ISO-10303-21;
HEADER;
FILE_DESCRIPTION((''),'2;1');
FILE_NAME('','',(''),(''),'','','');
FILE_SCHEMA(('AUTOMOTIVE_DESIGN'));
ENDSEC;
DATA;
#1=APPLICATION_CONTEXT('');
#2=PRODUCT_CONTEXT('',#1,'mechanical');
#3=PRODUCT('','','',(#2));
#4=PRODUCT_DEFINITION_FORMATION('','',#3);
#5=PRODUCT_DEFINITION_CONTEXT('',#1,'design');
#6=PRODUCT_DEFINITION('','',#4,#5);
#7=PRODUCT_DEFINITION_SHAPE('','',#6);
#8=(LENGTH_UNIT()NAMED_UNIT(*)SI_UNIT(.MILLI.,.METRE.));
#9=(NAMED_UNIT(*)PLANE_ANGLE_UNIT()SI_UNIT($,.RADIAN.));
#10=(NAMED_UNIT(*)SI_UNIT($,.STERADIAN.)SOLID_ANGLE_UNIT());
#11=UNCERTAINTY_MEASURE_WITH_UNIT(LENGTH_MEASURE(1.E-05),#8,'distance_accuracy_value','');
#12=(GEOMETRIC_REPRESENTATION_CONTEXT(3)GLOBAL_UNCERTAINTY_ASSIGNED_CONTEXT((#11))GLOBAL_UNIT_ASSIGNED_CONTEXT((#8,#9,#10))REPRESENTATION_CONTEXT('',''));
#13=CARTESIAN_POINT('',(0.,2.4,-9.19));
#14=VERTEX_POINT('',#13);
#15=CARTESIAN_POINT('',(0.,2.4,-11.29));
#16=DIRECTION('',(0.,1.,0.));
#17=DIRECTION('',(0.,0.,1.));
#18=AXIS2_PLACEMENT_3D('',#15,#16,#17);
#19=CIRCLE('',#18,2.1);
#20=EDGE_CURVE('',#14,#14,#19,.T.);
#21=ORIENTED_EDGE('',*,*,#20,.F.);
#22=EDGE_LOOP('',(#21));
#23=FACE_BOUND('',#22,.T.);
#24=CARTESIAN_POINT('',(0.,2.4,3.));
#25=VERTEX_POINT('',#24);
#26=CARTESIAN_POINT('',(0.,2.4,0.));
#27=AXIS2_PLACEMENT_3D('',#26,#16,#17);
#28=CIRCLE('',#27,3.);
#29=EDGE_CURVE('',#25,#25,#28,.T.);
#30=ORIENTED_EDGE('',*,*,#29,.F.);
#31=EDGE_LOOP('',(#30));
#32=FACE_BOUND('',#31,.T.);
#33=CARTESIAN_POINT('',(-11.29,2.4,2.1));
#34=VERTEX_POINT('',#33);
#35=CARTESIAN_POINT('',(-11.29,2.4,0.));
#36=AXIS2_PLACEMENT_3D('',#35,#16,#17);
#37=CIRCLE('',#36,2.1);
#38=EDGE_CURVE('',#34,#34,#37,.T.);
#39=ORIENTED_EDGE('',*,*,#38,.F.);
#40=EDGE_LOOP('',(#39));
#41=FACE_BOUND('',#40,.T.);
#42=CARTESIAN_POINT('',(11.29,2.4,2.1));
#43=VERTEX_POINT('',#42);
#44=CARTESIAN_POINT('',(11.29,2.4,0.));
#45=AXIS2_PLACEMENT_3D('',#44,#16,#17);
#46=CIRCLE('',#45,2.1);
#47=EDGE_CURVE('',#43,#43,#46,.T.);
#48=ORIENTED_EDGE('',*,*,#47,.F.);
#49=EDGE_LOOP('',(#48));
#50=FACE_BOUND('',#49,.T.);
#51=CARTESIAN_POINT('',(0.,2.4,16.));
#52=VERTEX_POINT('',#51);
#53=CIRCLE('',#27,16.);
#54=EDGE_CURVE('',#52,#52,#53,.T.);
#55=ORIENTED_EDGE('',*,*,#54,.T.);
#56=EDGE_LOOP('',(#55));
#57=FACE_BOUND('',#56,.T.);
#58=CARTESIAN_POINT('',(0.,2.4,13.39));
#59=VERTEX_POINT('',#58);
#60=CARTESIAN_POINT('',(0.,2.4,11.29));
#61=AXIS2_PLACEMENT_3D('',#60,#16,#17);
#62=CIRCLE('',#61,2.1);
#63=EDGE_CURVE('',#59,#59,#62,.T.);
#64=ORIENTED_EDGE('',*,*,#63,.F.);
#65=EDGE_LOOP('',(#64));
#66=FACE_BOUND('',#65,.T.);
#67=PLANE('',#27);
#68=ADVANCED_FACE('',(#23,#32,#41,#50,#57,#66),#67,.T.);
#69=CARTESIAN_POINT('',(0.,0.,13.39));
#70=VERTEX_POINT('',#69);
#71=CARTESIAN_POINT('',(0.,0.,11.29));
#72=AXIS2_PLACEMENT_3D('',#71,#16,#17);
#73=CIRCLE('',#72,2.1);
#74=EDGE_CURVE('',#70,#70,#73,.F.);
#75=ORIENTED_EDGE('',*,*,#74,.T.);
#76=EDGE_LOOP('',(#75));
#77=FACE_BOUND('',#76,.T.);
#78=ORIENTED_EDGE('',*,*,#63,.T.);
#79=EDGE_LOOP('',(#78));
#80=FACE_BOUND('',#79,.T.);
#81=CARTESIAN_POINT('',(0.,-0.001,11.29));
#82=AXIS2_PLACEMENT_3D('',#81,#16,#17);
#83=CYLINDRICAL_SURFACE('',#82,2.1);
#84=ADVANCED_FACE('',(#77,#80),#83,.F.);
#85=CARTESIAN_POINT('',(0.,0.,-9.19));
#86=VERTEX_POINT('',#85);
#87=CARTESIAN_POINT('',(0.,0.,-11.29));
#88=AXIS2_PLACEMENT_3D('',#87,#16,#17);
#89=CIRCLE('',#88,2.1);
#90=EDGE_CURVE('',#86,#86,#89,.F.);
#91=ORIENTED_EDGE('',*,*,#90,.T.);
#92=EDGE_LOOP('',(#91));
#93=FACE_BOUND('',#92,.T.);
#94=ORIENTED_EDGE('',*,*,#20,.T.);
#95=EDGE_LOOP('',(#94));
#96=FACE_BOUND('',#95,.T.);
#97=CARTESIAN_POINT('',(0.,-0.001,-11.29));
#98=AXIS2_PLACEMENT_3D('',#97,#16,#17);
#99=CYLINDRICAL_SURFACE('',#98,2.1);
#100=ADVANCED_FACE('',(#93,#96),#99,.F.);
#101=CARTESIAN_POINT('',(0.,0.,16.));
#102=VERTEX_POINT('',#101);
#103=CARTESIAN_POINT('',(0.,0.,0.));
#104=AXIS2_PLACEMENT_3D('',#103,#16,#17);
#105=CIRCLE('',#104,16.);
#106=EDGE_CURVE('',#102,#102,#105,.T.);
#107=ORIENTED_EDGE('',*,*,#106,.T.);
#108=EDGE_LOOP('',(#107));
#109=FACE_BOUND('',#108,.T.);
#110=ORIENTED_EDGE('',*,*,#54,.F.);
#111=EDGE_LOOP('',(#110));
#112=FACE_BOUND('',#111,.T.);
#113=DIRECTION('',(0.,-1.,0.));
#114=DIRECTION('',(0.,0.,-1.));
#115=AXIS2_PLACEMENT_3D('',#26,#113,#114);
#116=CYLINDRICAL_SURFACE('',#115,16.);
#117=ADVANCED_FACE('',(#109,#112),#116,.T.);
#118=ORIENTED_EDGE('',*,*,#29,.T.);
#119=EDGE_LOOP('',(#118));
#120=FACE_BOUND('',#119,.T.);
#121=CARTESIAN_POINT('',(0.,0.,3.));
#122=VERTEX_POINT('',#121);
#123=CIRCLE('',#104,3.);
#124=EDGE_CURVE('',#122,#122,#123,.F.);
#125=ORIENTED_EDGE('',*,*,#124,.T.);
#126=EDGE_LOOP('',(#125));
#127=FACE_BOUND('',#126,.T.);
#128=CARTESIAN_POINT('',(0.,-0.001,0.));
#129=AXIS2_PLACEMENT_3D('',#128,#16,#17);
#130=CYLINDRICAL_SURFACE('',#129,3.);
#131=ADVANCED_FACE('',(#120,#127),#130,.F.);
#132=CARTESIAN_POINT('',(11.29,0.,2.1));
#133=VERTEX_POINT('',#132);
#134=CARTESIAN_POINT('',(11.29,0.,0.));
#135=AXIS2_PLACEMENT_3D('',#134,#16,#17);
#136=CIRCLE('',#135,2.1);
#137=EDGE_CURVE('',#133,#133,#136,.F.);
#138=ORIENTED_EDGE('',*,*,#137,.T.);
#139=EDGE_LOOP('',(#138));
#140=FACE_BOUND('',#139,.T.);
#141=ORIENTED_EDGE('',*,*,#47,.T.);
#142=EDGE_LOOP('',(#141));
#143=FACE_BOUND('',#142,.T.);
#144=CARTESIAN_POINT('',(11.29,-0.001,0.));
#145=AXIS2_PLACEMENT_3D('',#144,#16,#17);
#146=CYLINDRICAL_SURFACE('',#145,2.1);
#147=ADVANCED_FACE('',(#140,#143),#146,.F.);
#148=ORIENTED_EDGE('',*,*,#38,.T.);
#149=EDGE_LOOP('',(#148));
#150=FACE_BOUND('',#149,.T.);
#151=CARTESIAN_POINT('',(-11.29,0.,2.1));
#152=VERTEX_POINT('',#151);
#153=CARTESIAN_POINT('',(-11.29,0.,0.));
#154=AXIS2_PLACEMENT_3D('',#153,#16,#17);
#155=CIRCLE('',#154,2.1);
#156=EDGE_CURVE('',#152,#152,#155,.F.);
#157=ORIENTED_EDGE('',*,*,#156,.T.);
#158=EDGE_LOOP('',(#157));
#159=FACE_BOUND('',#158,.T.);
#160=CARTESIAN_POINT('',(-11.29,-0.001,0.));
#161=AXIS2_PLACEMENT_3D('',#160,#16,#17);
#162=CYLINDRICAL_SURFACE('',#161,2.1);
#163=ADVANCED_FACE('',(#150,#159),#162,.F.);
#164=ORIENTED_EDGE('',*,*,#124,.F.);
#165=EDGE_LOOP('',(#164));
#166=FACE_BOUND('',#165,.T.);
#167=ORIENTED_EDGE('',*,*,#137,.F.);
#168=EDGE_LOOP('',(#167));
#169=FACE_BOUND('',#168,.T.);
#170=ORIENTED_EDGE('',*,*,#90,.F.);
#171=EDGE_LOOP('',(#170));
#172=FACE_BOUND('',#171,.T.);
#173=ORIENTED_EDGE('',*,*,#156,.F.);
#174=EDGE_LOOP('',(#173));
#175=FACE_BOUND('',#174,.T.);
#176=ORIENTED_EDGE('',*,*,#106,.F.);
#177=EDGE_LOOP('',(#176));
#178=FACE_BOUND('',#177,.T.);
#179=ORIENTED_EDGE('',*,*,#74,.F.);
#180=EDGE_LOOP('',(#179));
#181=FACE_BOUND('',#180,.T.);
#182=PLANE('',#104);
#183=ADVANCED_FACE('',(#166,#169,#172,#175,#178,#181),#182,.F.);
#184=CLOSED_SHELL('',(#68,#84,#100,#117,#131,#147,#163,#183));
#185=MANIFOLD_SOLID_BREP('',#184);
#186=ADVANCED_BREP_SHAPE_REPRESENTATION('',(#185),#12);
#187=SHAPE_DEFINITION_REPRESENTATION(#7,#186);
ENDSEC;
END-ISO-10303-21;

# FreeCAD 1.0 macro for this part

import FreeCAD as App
import Part
import Sketcher
Q = App.Units.Quantity

doc = App.newDocument("Part")
body = doc.addObject("PartDesign::Body", "Body")

# Sketch on XZ plane
sketch1 = doc.addObject("Sketcher::SketchObject", "Sketch")
body.addObject(sketch1)
sketch1.AttachmentSupport = (doc.XZ_Plane, [""])
sketch1.MapMode = "FlatFace"
sketch1.addGeometry(Part.Circle(App.Vector(0, 0, 0), App.Vector(0, 0, 1), 16), False)
sketch1.addConstraint([
    Sketcher.Constraint("Coincident", 0, 3, -1, 1),
    Sketcher.Constraint("Diameter", 0, Q("32 mm")),
])
pad1 = doc.addObject("PartDesign::Pad", "Pad")
body.addObject(pad1)
pad1.Profile = sketch1
pad1.Length = 2.4
pad1.Reversed = True

# Sketch on XZ plane
sketch2 = doc.addObject("Sketcher::SketchObject", "Sketch001")
body.addObject(sketch2)
sketch2.AttachmentSupport = (doc.XZ_Plane, [""])
sketch2.MapMode = "FlatFace"
sketch2.AttachmentOffset = App.Placement(App.Vector(0, 0, -2.4), App.Rotation())
sketch2.addGeometry(Part.Circle(App.Vector(0, -11.3, 0), App.Vector(0, 0, 1), 2.1), False)
sketch2.addConstraint([
    Sketcher.Constraint("PointOnObject", 0, 3, -2),
    Sketcher.Constraint("Diameter", 0, Q("4.2 mm")),
    Sketcher.Constraint("DistanceY", 0, 3, -1, 1, Q("11.29 mm")),
])
pocket1 = doc.addObject("PartDesign::Pocket", "Pocket")
body.addObject(pocket1)
pocket1.Profile = sketch2
pocket1.Type = "UpToFirst"
pocket1.Reversed = True

# Sketch on XZ plane
sketch3 = doc.addObject("Sketcher::SketchObject", "Sketch002")
body.addObject(sketch3)
sketch3.AttachmentSupport = (doc.XZ_Plane, [""])
sketch3.MapMode = "FlatFace"
sketch3.AttachmentOffset = App.Placement(App.Vector(0, 0, -2.4), App.Rotation())
sketch3.addGeometry(Part.Circle(App.Vector(11.3, 0, 0), App.Vector(0, 0, 1), 2.1), False)
sketch3.addConstraint([
    Sketcher.Constraint("PointOnObject", 0, 3, -1),
    Sketcher.Constraint("Diameter", 0, Q("4.2 mm")),
    Sketcher.Constraint("DistanceX", -1, 1, 0, 3, Q("11.29 mm")),
])
pocket2 = doc.addObject("PartDesign::Pocket", "Pocket001")
body.addObject(pocket2)
pocket2.Profile = sketch3
pocket2.Type = "UpToFirst"
pocket2.Reversed = True

# Sketch on XZ plane
sketch4 = doc.addObject("Sketcher::SketchObject", "Sketch003")
body.addObject(sketch4)
sketch4.AttachmentSupport = (doc.XZ_Plane, [""])
sketch4.MapMode = "FlatFace"
sketch4.AttachmentOffset = App.Placement(App.Vector(0, 0, -2.4), App.Rotation())
sketch4.addGeometry(Part.Circle(App.Vector(0, 11.3, 0), App.Vector(0, 0, 1), 2.1), False)
sketch4.addConstraint([
    Sketcher.Constraint("PointOnObject", 0, 3, -2),
    Sketcher.Constraint("Diameter", 0, Q("4.2 mm")),
    Sketcher.Constraint("DistanceY", -1, 1, 0, 3, Q("11.29 mm")),
])
pocket3 = doc.addObject("PartDesign::Pocket", "Pocket002")
body.addObject(pocket3)
pocket3.Profile = sketch4
pocket3.Type = "UpToFirst"
pocket3.Reversed = True

# Sketch on XZ plane
sketch5 = doc.addObject("Sketcher::SketchObject", "Sketch004")
body.addObject(sketch5)
sketch5.AttachmentSupport = (doc.XZ_Plane, [""])
sketch5.MapMode = "FlatFace"
sketch5.AttachmentOffset = App.Placement(App.Vector(0, 0, -2.4), App.Rotation())
sketch5.addGeometry(Part.Circle(App.Vector(-11.3, 0, 0), App.Vector(0, 0, 1), 2.1), False)
sketch5.addConstraint([
    Sketcher.Constraint("PointOnObject", 0, 3, -1),
    Sketcher.Constraint("Diameter", 0, Q("4.2 mm")),
    Sketcher.Constraint("DistanceX", 0, 3, -1, 1, Q("11.29 mm")),
])
pocket4 = doc.addObject("PartDesign::Pocket", "Pocket003")
body.addObject(pocket4)
pocket4.Profile = sketch5
pocket4.Type = "UpToFirst"
pocket4.Reversed = True

# Sketch on XZ plane
sketch6 = doc.addObject("Sketcher::SketchObject", "Sketch005")
body.addObject(sketch6)
sketch6.AttachmentSupport = (doc.XZ_Plane, [""])
sketch6.MapMode = "FlatFace"
sketch6.AttachmentOffset = App.Placement(App.Vector(0, 0, -2.4), App.Rotation())
sketch6.addGeometry(Part.Circle(App.Vector(0, 0, 0), App.Vector(0, 0, 1), 3), False)
sketch6.addConstraint([
    Sketcher.Constraint("Coincident", 0, 3, -1, 1),
    Sketcher.Constraint("Diameter", 0, Q("6 mm")),
])
pocket5 = doc.addObject("PartDesign::Pocket", "Pocket004")
body.addObject(pocket5)
pocket5.Profile = sketch6
pocket5.Type = "UpToFirst"
pocket5.Reversed = True

doc.recompute()
